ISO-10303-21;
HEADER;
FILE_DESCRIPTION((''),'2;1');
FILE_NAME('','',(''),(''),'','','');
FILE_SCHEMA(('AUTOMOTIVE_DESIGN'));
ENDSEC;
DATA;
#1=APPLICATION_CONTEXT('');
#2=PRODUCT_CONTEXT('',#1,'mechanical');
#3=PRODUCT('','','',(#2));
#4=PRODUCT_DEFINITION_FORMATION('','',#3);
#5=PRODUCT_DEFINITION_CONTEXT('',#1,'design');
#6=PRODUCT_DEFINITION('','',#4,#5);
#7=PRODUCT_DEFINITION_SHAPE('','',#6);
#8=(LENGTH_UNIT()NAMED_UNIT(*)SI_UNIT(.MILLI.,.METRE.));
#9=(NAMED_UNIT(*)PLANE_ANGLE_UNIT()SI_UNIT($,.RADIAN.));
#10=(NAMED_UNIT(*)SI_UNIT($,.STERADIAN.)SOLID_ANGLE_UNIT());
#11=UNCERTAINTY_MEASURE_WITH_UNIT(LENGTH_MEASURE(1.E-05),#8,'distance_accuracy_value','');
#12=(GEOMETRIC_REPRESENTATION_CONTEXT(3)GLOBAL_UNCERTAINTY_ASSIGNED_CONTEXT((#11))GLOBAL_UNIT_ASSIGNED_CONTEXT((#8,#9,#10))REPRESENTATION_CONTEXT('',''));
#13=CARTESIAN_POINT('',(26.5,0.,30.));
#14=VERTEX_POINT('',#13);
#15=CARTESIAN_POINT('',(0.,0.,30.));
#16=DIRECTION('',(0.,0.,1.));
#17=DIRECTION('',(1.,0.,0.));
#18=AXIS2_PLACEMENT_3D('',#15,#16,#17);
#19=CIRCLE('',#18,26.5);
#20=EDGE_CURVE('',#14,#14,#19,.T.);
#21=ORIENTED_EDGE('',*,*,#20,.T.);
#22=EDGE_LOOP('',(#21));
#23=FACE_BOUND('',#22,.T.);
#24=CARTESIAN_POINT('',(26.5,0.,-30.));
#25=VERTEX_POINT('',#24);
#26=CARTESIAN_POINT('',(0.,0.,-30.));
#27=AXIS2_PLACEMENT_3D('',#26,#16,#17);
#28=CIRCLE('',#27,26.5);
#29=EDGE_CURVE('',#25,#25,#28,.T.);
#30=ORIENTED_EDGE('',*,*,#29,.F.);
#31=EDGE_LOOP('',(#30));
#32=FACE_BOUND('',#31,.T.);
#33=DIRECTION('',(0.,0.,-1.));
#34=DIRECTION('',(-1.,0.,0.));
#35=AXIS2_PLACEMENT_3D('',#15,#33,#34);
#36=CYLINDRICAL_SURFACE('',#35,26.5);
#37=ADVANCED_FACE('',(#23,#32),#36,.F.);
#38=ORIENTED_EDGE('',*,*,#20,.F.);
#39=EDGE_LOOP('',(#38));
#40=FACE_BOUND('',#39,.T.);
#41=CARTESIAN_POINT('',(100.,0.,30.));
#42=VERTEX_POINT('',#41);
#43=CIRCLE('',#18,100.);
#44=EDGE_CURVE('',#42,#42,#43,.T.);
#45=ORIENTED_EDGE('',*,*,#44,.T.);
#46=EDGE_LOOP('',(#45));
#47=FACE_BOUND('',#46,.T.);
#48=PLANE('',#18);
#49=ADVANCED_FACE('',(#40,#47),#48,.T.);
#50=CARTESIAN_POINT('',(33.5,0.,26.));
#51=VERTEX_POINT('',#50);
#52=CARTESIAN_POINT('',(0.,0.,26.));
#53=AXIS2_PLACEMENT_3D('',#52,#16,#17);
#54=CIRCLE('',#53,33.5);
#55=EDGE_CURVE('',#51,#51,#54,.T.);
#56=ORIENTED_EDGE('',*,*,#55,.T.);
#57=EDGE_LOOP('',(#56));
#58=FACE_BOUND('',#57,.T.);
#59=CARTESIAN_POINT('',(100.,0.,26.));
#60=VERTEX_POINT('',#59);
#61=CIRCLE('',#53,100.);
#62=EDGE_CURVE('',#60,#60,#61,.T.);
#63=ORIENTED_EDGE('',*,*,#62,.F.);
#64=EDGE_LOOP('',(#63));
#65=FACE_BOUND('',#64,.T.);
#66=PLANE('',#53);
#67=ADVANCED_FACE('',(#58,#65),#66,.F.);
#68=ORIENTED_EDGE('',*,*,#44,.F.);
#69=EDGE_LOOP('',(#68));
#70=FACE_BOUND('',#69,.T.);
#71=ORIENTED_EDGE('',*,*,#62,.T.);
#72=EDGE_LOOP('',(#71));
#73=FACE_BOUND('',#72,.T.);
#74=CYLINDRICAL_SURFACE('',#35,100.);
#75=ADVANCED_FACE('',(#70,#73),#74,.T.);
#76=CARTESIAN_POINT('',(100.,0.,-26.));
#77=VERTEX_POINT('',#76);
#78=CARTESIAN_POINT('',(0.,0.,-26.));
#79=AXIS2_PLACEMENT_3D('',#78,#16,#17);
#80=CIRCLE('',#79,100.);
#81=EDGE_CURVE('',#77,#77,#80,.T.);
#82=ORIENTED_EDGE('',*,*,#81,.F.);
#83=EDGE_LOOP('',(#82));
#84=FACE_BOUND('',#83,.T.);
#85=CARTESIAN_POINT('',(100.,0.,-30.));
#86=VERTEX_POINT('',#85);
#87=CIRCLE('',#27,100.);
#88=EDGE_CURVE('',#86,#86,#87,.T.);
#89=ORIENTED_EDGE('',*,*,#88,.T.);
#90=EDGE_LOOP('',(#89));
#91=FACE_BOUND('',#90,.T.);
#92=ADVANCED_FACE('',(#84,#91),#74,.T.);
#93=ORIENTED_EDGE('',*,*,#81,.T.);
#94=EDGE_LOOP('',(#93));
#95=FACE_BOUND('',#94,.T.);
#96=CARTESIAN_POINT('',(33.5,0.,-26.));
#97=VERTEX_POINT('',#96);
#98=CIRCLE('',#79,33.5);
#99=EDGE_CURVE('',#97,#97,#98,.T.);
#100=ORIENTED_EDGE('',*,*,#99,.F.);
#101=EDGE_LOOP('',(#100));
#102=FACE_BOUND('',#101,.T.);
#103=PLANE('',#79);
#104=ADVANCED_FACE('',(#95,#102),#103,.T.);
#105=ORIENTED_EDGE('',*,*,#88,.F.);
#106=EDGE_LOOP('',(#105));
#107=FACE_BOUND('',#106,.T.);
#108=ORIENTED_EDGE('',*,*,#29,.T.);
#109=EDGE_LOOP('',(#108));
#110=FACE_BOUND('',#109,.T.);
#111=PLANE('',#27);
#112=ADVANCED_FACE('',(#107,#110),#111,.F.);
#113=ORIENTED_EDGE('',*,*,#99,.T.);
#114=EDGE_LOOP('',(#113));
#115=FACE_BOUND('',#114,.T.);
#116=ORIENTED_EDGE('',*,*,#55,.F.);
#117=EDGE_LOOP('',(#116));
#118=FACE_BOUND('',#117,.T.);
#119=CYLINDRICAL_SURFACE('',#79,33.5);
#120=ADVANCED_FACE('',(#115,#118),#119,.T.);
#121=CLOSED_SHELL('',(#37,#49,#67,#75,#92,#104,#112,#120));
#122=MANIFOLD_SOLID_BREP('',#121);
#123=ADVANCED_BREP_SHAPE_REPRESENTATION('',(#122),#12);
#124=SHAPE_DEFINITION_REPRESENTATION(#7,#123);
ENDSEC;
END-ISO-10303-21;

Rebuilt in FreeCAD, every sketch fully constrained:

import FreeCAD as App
import Part
import Sketcher

V = App.Vector
Q = App.Units.Quantity

doc = App.newDocument("Part")
body = doc.addObject("PartDesign::Body", "Body")

# Sketch on XY plane
sketch1 = body.newObject("Sketcher::SketchObject", "Sketch")
sketch1.AttachmentSupport = (doc.getObject("XY_Plane"), [""])
sketch1.MapMode = "FlatFace"
sketch1.addGeometry(Part.Circle(V(0, 0, 0), V(0, 0, 1), 100), False)
sketch1.addGeometry(Part.Circle(V(0, 0, 0), V(0, 0, 1), 26), False)
sketch1.addConstraint(Sketcher.Constraint("Coincident", 0, 3, -1, 1))
sketch1.addConstraint(Sketcher.Constraint("Coincident", 1, 3, -1, 1))
sketch1.addConstraint(Sketcher.Constraint("Diameter", 0, Q("200 mm")))
sketch1.addConstraint(Sketcher.Constraint("Diameter", 1, Q("53 mm")))
pad1 = body.newObject("PartDesign::Pad", "Pad")
pad1.Profile = sketch1
pad1.Length = 60
pad1.Midplane = True

# Sketch on XY plane
sketch2 = body.newObject("Sketcher::SketchObject", "Sketch001")
sketch2.AttachmentSupport = (doc.getObject("XY_Plane"), [""])
sketch2.MapMode = "FlatFace"
sketch2.addGeometry(Part.Circle(V(0, 0, 0), V(0, 0, 1), 100), False)
sketch2.addGeometry(Part.Circle(V(0, 0, 0), V(0, 0, 1), 34), False)
sketch2.addConstraint(Sketcher.Constraint("Coincident", 0, 3, -1, 1))
sketch2.addConstraint(Sketcher.Constraint("Coincident", 1, 3, -1, 1))
sketch2.addConstraint(Sketcher.Constraint("Diameter", 0, Q("200 mm")))
sketch2.addConstraint(Sketcher.Constraint("Diameter", 1, Q("67 mm")))
pocket1 = body.newObject("PartDesign::Pocket", "Pocket")
pocket1.Profile = sketch2
pocket1.Length = 52
pocket1.Midplane = True

doc.recompute()
